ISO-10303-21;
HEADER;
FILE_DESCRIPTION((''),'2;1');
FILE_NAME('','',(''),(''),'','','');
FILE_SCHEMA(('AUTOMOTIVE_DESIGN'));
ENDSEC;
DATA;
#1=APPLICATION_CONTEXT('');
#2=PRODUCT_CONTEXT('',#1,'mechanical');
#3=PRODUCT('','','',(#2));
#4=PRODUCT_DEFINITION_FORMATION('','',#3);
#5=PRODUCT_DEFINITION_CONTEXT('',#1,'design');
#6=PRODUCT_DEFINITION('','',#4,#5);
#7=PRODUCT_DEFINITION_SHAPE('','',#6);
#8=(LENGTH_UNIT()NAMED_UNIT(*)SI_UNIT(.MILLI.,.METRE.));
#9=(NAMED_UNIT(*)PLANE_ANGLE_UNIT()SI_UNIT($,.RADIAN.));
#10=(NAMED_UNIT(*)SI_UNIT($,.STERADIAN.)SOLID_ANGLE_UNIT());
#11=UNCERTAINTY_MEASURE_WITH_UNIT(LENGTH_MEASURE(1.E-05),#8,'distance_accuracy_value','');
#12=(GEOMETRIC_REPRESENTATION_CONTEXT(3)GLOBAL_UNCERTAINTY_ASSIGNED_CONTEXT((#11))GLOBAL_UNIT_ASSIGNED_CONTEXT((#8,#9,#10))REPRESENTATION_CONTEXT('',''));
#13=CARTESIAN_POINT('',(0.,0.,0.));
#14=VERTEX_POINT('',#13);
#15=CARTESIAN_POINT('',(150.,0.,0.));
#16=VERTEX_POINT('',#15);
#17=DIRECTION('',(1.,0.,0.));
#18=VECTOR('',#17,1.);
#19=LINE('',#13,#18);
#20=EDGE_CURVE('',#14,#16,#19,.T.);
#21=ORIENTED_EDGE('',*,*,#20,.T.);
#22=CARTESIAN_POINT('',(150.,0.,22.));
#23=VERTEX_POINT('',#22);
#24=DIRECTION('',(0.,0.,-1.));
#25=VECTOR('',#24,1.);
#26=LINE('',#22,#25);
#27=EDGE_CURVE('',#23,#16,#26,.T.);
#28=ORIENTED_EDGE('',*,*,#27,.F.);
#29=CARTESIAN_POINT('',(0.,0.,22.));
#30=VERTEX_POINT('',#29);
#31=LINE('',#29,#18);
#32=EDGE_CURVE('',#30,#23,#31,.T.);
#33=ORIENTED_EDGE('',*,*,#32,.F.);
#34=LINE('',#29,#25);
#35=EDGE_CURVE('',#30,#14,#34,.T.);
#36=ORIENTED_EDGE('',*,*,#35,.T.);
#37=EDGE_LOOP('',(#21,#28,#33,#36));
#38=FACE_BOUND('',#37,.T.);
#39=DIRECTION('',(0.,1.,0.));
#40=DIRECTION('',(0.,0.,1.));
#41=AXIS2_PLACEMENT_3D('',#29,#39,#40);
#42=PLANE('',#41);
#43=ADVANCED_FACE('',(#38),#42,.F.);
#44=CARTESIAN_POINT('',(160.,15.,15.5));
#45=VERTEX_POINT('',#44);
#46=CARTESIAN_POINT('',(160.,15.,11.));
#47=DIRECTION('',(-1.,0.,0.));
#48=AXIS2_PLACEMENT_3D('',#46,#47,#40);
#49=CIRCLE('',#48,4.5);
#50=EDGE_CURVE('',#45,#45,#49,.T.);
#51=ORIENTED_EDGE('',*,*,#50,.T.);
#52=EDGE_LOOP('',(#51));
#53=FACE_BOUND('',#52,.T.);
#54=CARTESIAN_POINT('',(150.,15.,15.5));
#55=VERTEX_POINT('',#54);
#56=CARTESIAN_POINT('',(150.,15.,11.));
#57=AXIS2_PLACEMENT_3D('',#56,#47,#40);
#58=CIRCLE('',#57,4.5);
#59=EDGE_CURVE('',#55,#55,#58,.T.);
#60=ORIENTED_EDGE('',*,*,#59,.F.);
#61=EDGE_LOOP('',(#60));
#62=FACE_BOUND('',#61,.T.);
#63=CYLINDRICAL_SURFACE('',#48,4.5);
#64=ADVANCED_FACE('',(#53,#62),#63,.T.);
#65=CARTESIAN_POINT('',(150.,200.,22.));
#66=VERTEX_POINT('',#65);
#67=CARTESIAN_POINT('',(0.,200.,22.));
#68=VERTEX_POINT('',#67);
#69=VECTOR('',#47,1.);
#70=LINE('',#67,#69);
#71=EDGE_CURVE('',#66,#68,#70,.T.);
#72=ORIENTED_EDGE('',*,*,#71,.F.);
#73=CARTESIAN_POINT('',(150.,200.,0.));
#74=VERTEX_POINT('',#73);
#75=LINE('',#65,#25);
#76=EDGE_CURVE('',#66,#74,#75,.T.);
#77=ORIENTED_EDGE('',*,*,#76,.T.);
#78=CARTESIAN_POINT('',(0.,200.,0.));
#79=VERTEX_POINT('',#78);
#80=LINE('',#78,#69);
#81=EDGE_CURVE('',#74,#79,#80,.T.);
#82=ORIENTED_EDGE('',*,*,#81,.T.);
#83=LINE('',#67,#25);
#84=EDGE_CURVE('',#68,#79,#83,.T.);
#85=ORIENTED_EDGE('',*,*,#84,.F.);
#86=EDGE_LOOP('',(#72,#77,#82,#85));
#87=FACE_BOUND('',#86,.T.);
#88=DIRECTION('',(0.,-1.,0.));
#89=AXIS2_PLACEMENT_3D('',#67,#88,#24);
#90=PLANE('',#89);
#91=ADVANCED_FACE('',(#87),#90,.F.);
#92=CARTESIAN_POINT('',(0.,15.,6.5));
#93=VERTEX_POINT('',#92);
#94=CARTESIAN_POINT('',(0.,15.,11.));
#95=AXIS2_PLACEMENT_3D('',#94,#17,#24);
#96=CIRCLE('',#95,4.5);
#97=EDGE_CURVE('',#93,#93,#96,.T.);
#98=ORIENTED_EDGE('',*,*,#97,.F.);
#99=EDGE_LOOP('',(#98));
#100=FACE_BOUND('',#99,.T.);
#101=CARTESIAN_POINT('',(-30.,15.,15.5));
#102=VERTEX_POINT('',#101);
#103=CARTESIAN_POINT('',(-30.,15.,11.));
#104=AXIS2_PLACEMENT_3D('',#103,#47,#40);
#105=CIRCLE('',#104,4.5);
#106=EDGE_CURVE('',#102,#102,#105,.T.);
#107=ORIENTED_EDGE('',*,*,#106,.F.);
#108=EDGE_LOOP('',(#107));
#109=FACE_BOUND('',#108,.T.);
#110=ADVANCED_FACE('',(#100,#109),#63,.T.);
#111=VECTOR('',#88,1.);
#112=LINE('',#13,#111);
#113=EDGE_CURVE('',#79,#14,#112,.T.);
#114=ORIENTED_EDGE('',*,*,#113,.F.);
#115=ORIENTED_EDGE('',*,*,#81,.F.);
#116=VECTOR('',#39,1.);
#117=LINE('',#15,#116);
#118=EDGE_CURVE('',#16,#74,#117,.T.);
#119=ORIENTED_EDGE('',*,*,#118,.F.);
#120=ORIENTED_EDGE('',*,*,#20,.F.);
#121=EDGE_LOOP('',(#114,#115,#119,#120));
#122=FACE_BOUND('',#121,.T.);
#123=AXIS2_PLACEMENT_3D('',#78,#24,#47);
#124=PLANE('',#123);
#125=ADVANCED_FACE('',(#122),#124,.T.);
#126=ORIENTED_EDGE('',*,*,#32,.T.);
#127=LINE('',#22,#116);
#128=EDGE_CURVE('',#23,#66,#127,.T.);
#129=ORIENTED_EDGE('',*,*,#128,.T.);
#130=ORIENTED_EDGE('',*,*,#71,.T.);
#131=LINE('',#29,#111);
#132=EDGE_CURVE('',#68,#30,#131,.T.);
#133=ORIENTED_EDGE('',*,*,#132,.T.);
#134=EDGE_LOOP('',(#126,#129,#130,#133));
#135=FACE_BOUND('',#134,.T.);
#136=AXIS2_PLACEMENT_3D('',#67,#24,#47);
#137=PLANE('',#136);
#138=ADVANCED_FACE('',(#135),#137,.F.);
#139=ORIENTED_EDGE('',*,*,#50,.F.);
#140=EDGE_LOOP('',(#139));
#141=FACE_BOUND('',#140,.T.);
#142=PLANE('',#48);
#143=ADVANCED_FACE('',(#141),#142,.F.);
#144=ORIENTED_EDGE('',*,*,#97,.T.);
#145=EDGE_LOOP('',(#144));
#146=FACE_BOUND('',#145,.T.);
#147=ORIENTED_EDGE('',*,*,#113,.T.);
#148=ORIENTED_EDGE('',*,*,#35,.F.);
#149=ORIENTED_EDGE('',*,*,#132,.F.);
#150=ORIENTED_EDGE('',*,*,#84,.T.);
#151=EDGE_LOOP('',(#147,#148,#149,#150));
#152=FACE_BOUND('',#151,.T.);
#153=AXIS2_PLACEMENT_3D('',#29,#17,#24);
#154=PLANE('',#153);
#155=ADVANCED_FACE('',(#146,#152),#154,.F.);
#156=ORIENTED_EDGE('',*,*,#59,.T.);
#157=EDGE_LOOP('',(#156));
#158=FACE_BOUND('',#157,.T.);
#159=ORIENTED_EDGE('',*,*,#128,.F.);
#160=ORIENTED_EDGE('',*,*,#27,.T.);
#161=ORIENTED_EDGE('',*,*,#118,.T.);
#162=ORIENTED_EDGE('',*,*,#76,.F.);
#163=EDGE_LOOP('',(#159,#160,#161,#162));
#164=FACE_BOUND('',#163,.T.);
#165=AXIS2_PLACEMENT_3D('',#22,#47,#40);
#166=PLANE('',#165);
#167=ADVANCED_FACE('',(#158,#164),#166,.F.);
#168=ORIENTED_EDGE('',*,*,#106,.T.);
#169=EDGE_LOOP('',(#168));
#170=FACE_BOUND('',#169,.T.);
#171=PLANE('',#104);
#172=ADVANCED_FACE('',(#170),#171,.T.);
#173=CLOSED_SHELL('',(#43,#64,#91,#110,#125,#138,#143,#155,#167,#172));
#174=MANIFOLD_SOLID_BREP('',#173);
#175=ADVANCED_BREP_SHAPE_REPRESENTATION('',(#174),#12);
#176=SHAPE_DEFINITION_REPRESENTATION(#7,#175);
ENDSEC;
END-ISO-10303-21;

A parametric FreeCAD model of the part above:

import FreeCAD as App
import Part
import Sketcher


def add_polygon(sketch, points):
    """Adds a closed chain of lines whose ends are joined by coincident constraints."""
    first, n = sketch.GeometryCount, len(points)
    for a, b in zip(points, points[1:] + points[:1]):
        sketch.addGeometry(Part.LineSegment(App.Vector(*a, 0), App.Vector(*b, 0)), False)
    for i in range(n):
        sketch.addConstraint(Sketcher.Constraint("Coincident", first + i, 2, first + (i + 1) % n, 1))

doc = App.newDocument("Part")
params = doc.addObject("Spreadsheet::Sheet", "Params")
for row, (alias, value) in enumerate([
    ("sketch1_width", "150 mm"),
    ("sketch1_height", "200 mm"),
    ("pad1_length", "22 mm"),
    ("sketch2_diameter", "9 mm"),
    ("pad2_length", "30 mm"),
    ("pad2_length2", "160 mm"),
], start=1):
    params.set(f"A{row}", alias)
    params.set(f"B{row}", "=" + value)
    params.setAlias(f"B{row}", alias)

body = doc.addObject("PartDesign::Body", "Body")

# Sketch on XY plane
sketch1 = body.newObject("Sketcher::SketchObject", "Sketch")
sketch1.AttachmentSupport = (doc.getObject("XY_Plane"), [""])
sketch1.MapMode = "FlatFace"
add_polygon(sketch1, [(0, 200), (0, 0), (150, 0), (150, 200)])  # lines 0-3
sketch1.addConstraint(Sketcher.Constraint("Vertical", 0))
sketch1.addConstraint(Sketcher.Constraint("Horizontal", 1))
sketch1.addConstraint(Sketcher.Constraint("Vertical", 2))
sketch1.addConstraint(Sketcher.Constraint("Horizontal", 3))
sketch1.addConstraint(Sketcher.Constraint("Coincident", 0, 2, -1, 1))
sketch1.addConstraint(Sketcher.Constraint("DistanceX", 1, 1, 1, 2, 150.0))
sketch1.addConstraint(Sketcher.Constraint("DistanceY", 0, 2, 0, 1, 200.0))
sketch1.setExpression("Constraints[9]", "Params.sketch1_width")
sketch1.setExpression("Constraints[10]", "Params.sketch1_height")
pad1 = body.newObject("PartDesign::Pad", "Pad")
pad1.Profile = sketch1
pad1.setExpression("Length", "Params.pad1_length")

# Sketch on YZ plane
sketch2 = body.newObject("Sketcher::SketchObject", "Sketch001")
sketch2.AttachmentSupport = (doc.getObject("YZ_Plane"), [""])
sketch2.MapMode = "FlatFace"
sketch2.addGeometry(Part.Circle(App.Vector(15, 11, 0), App.Vector(0, 0, 1), 4.5), False)
sketch2.addConstraint(Sketcher.Constraint("Diameter", 0, 9.0))
sketch2.addConstraint(Sketcher.Constraint("DistanceX", -1, 1, 0, 3, 15.0))
sketch2.addConstraint(Sketcher.Constraint("DistanceY", -1, 1, 0, 3, 11.0))
sketch2.setExpression("Constraints[0]", "Params.sketch2_diameter")
pad2 = body.newObject("PartDesign::Pad", "Pad001")
pad2.Profile = sketch2
pad2.Type = "TwoLengths"
pad2.setExpression("Length", "Params.pad2_length")
pad2.setExpression("Length2", "Params.pad2_length2")
pad2.Reversed = True

doc.recompute()
